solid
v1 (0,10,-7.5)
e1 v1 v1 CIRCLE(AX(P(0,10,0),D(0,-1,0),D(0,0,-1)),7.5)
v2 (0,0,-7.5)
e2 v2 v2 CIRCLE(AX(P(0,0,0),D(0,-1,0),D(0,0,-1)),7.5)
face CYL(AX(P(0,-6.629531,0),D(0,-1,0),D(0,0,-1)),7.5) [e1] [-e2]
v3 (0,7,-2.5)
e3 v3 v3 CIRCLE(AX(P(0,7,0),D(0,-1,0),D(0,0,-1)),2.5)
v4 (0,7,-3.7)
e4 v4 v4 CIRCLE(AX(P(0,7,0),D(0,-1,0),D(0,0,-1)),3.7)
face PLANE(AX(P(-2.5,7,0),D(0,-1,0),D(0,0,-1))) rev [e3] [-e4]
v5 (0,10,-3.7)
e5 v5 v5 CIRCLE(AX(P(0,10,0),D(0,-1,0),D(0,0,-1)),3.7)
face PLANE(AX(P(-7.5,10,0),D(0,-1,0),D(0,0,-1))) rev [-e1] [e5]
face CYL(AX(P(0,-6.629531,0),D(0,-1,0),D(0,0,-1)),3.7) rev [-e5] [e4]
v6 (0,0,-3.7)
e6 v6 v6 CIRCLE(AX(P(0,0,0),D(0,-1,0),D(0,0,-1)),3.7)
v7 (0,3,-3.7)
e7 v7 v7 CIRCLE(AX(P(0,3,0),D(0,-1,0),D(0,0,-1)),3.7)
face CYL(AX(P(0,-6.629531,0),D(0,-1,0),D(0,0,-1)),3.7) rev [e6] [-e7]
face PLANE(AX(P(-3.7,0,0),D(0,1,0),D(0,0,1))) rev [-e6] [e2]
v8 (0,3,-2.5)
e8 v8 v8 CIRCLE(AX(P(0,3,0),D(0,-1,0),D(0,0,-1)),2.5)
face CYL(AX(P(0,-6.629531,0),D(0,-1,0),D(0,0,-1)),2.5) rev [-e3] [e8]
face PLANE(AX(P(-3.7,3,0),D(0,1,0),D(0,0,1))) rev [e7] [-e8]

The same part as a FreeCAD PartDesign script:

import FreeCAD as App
import Part
import Sketcher
from FreeCAD import Vector


def add_polygon(sketch, points):
    """Adds a closed chain of lines whose ends are joined by coincident constraints."""
    first, n = sketch.GeometryCount, len(points)
    for a, b in zip(points, points[1:] + points[:1]):
        sketch.addGeometry(Part.LineSegment(App.Vector(*a, 0), App.Vector(*b, 0)), False)
    for i in range(n):
        sketch.addConstraint(Sketcher.Constraint("Coincident", first + i, 2, first + (i + 1) % n, 1))

doc = App.newDocument("Part")
body = doc.addObject("PartDesign::Body", "Body")

# Sketch on XY plane
sketch1 = body.newObject("Sketcher::SketchObject", "Sketch")
sketch1.AttachmentSupport = (doc.getObject("XY_Plane"), [""])
sketch1.MapMode = "FlatFace"
add_polygon(sketch1, [(-7.5, 0), (-3.7, 0), (-3.7, 3), (-2.5, 3), (-2.5, 7), (-3.7, 7), (-3.7, 10), (-7.5, 10)])  # lines 0-7
sketch1.addConstraint(Sketcher.Constraint("Horizontal", 0))
sketch1.addConstraint(Sketcher.Constraint("Vertical", 1))
sketch1.addConstraint(Sketcher.Constraint("Horizontal", 2))
sketch1.addConstraint(Sketcher.Constraint("Vertical", 3))
sketch1.addConstraint(Sketcher.Constraint("Horizontal", 4))
sketch1.addConstraint(Sketcher.Constraint("Vertical", 5))
sketch1.addConstraint(Sketcher.Constraint("Horizontal", 6))
sketch1.addConstraint(Sketcher.Constraint("Vertical", 7))
sketch1.addConstraint(Sketcher.Constraint("PointOnObject", 0, 2, -1))
sketch1.addConstraint(Sketcher.Constraint("Vertical", 1, 2, 4, 2))
sketch1.addConstraint(Sketcher.Constraint("Equal", 1, 5))
sketch1.addConstraint(Sketcher.Constraint("DistanceY", 1, 1, 1, 2, 3.0))
sketch1.addConstraint(Sketcher.Constraint("DistanceY", 3, 1, 3, 2, 4.0))
sketch1.addConstraint(Sketcher.Constraint("DistanceX", 0, 1, 0, 2, 3.8))
sketch1.addConstraint(Sketcher.Constraint("DistanceX", 2, 1, 2, 2, 1.2))
sketch1.addConstraint(Sketcher.Constraint("DistanceX", 0, 2, -1, 1, 3.7))
revolution = body.newObject("PartDesign::Revolution", "Revolution")
revolution.Profile = sketch1
revolution.ReferenceAxis = (sketch1, ["V_Axis"])
revolution.Angle = 360

doc.recompute()
